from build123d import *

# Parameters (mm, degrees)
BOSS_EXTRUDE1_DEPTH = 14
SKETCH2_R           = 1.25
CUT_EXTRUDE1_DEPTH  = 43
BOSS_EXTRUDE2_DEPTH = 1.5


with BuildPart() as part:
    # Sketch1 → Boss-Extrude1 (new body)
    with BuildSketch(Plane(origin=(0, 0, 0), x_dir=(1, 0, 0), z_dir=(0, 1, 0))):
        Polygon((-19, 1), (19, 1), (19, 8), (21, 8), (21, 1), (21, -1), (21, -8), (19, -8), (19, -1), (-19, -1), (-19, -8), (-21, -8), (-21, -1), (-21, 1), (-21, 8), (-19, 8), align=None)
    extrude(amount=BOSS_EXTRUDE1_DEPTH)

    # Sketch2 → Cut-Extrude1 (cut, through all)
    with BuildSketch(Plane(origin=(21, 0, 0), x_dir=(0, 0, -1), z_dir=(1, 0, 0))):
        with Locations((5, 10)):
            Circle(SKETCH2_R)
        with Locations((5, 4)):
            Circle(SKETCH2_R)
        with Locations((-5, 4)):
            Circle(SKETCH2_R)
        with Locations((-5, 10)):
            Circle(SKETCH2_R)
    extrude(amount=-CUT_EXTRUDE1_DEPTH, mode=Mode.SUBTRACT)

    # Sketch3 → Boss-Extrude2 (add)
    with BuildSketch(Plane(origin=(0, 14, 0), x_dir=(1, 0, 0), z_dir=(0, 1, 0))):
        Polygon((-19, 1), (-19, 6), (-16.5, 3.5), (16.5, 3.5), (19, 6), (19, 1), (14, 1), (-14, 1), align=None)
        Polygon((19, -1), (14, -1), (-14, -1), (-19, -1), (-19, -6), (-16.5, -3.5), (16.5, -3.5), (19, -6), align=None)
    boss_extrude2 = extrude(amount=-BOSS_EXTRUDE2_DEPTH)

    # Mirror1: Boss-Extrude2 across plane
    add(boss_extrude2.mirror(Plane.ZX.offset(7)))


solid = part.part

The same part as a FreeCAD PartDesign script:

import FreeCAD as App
import Part
import Sketcher
from FreeCAD import Vector
Q = App.Units.Quantity


def add_polygon(sketch, points):
    """Adds a closed chain of lines whose ends are joined by coincident constraints."""
    first, n = sketch.GeometryCount, len(points)
    for a, b in zip(points, points[1:] + points[:1]):
        sketch.addGeometry(Part.LineSegment(App.Vector(*a, 0), App.Vector(*b, 0)), False)
    for i in range(n):
        sketch.addConstraint(Sketcher.Constraint("Coincident", first + i, 2, first + (i + 1) % n, 1))

doc = App.newDocument("Part")
body = doc.addObject("PartDesign::Body", "Body")

# Sketch on XZ plane
sketch1 = body.newObject("Sketcher::SketchObject", "Sketch")
sketch1.AttachmentSupport = (doc.getObject("XZ_Plane"), [""])
sketch1.MapMode = "FlatFace"
add_polygon(sketch1, [(19, -1), (-19, -1), (-19, -8), (-21, -8), (-21, 8), (-19, 8), (-19, 1), (19, 1), (19, 8), (21, 8), (21, -8), (19, -8)])  # lines 0-11
sketch1.addConstraint([
    Sketcher.Constraint("Horizontal", 0),
    Sketcher.Constraint("Vertical", 1),
    Sketcher.Constraint("Horizontal", 2),
    Sketcher.Constraint("Vertical", 3),
    Sketcher.Constraint("Horizontal", 4),
    Sketcher.Constraint("Vertical", 5),
    Sketcher.Constraint("Horizontal", 6),
    Sketcher.Constraint("Vertical", 7),
    Sketcher.Constraint("Horizontal", 8),
    Sketcher.Constraint("Vertical", 9),
    Sketcher.Constraint("Horizontal", 10),
    Sketcher.Constraint("Vertical", 11),
    Sketcher.Constraint("Symmetric", 0, 2, 6, 2, -1, 1),
    Sketcher.Constraint("Symmetric", 2, 2, 8, 2, -1, 1),
    Sketcher.Constraint("Symmetric", 4, 2, 10, 2, -1, 1),
    Sketcher.Constraint("Symmetric", 4, 2, 7, 2, -2),
    Sketcher.Constraint("DistanceX", 0, 2, 0, 1, Q("38 mm")),
    Sketcher.Constraint("DistanceX", 2, 2, 2, 1, Q("2 mm")),
    Sketcher.Constraint("DistanceY", 1, 2, 1, 1, Q("7 mm")),
    Sketcher.Constraint("DistanceY", 3, 1, 3, 2, Q("16 mm")),
])
pad1 = body.newObject("PartDesign::Pad", "Pad")
pad1.Profile = sketch1
pad1.Length = 14
pad1.Reversed = True

# Sketch on YZ plane
sketch2 = body.newObject("Sketcher::SketchObject", "Sketch001")
sketch2.AttachmentSupport = (doc.getObject("YZ_Plane"), [""])
sketch2.MapMode = "FlatFace"
sketch2.AttachmentOffset = App.Placement(Vector(0, 0, 21), App.Rotation())
sketch2.addGeometry([
    Part.Circle(Vector(10, -5, 0), Vector(0, 0, 1), 1.2),
    Part.Circle(Vector(4, -5, 0), Vector(0, 0, 1), 1.2),
    Part.Circle(Vector(4, 5, 0), Vector(0, 0, 1), 1.2),
    Part.Circle(Vector(10, 5, 0), Vector(0, 0, 1), 1.2),
], False)
sketch2.addConstraint([
    Sketcher.Constraint("Equal", 0, 1),
    Sketcher.Constraint("Equal", 1, 2),
    Sketcher.Constraint("Equal", 2, 3),
    Sketcher.Constraint("Symmetric", 1, 3, 2, 3, -1),
    Sketcher.Constraint("Symmetric", 0, 3, 3, 3, -1),
    Sketcher.Constraint("Horizontal", 0, 3, 1, 3),
    Sketcher.Constraint("Diameter", 0, Q("2.5 mm")),
    Sketcher.Constraint("DistanceX", -1, 1, 0, 3, Q("10 mm")),
    Sketcher.Constraint("DistanceY", 0, 3, -1, 1, Q("5 mm")),
    Sketcher.Constraint("DistanceX", -1, 1, 1, 3, Q("4 mm")),
])
pocket1 = body.newObject("PartDesign::Pocket", "Pocket")
pocket1.Profile = sketch2
pocket1.Type = "ThroughAll"

# Sketch on XZ plane
sketch3 = body.newObject("Sketcher::SketchObject", "Sketch002")
sketch3.AttachmentSupport = (doc.getObject("XZ_Plane"), [""])
sketch3.MapMode = "FlatFace"
sketch3.AttachmentOffset = App.Placement(Vector(0, 0, -14), App.Rotation())
add_polygon(sketch3, [(-19, -6), (-19, -1), (19, -1), (19, -6), (16.5, -3.5), (-16.5, -3.5)])  # lines 0-5
add_polygon(sketch3, [(19, 1), (-19, 1), (-19, 6), (-16.5, 3.5), (16.5, 3.5), (19, 6)])  # lines 6-11
sketch3.addConstraint([
    Sketcher.Constraint("Vertical", 0),
    Sketcher.Constraint("Horizontal", 1),
    Sketcher.Constraint("Vertical", 2),
    Sketcher.Constraint("Horizontal", 4),
    Sketcher.Constraint("Horizontal", 6),
    Sketcher.Constraint("Vertical", 7),
    Sketcher.Constraint("Horizontal", 9),
    Sketcher.Constraint("Vertical", 11),
    Sketcher.Constraint("Symmetric", 1, 2, 6, 2, -1, 1),
    Sketcher.Constraint("Symmetric", 3, 2, 8, 2, -1, 1),
    Sketcher.Constraint("Symmetric", 5, 2, 10, 2, -1, 1),
    Sketcher.Constraint("Symmetric", 2, 2, 5, 2, -2),
    Sketcher.Constraint("Perpendicular", 3, 5),
    Sketcher.Constraint("Perpendicular", 5, 8),
    Sketcher.Constraint("Perpendicular", 8, 10),
    Sketcher.Constraint("Vertical", 4, 2, 8, 2),
    Sketcher.Constraint("DistanceX", 1, 1, 1, 2, Q("38 mm")),
    Sketcher.Constraint("DistanceX", 4, 2, 4, 1, Q("33 mm")),
    Sketcher.Constraint("DistanceY", 0, 1, 0, 2, Q("5 mm")),
    Sketcher.Constraint("DistanceY", 0, 2, -1, 1, Q("1 mm")),
])
pad2 = body.newObject("PartDesign::Pad", "Pad001")
pad2.Profile = sketch3
pad2.Length = 1.5
doc.recompute()

datumplane = body.newObject("PartDesign::Plane", "DatumPlane")
datumplane.AttachmentSupport = (doc.getObject("XZ_Plane"), [""])
datumplane.MapMode = "FlatFace"
datumplane.AttachmentOffset = App.Placement(Vector(0, 0, -7), App.Rotation())
mirrored = body.newObject("PartDesign::Mirrored", "Mirrored")
mirrored.Originals = [pad2]
mirrored.MirrorPlane = (datumplane, [""])
body.Tip = mirrored

doc.recompute()
